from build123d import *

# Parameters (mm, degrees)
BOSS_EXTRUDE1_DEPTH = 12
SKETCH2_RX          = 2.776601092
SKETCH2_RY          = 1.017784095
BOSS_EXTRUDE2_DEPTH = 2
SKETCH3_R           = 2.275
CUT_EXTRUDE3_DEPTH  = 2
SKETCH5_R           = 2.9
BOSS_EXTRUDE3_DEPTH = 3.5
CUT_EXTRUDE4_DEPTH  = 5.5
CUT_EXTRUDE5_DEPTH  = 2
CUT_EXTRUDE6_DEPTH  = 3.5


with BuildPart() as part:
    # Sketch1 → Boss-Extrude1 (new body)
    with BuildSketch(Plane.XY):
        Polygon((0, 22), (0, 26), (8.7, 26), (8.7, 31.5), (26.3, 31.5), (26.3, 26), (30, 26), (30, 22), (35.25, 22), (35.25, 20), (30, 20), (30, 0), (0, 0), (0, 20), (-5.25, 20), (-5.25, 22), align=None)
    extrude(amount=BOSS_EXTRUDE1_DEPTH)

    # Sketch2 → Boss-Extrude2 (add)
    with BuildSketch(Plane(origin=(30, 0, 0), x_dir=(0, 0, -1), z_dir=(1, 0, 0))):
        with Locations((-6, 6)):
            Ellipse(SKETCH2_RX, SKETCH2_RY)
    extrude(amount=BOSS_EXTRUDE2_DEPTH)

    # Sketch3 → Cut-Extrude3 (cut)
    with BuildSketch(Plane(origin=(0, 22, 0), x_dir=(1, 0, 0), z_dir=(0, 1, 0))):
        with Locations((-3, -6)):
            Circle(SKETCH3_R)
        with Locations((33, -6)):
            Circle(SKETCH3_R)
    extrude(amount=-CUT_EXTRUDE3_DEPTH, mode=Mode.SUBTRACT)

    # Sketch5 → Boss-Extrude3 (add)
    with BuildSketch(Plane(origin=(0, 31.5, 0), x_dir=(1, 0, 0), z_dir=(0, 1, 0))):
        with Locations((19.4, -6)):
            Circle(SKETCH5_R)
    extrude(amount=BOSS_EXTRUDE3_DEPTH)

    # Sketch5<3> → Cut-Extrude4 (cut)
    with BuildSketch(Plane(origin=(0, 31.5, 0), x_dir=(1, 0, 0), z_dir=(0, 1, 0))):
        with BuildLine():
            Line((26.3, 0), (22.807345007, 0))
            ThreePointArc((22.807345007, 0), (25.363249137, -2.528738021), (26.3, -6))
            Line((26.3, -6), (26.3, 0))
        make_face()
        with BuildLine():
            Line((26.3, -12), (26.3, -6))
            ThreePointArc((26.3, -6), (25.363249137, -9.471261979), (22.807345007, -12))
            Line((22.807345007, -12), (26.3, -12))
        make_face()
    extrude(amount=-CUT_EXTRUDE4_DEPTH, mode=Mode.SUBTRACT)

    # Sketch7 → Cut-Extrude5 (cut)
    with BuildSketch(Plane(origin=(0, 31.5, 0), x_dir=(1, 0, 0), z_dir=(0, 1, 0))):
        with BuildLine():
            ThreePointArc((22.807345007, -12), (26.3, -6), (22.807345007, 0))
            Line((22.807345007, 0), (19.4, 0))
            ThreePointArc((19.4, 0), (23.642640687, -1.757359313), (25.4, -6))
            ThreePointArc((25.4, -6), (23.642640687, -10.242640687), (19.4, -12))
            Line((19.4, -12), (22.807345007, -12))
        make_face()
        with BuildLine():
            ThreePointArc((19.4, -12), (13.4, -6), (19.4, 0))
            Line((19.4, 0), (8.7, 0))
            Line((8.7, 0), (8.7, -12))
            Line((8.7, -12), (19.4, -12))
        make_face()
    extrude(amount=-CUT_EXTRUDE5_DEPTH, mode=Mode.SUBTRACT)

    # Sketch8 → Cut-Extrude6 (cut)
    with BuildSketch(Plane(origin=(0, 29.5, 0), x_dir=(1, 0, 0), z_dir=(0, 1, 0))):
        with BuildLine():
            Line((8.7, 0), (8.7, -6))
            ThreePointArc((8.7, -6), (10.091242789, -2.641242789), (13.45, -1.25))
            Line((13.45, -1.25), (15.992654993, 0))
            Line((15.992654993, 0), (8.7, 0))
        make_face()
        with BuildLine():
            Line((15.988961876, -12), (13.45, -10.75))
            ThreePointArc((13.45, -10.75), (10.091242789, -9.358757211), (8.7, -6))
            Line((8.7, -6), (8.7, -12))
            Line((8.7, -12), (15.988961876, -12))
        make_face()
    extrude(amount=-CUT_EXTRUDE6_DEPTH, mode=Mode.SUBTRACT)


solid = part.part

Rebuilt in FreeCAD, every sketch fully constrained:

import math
import FreeCAD as App
import Part
import Sketcher

V = App.Vector
Q = App.Units.Quantity

doc = App.newDocument("Part")
body = doc.addObject("PartDesign::Body", "Body")

sketch1 = body.newObject("Sketcher::SketchObject", "Sketch")
sketch1.AttachmentSupport = (doc.getObject("XY_Plane"), [""])
sketch1.MapMode = "FlatFace"
sketch1.addGeometry(Part.LineSegment(V(0, 26, 0), V(0, 22, 0)), False)
sketch1.addGeometry(Part.LineSegment(V(0, 22, 0), V(-5.2, 22, 0)), False)
sketch1.addGeometry(Part.LineSegment(V(-5.2, 22, 0), V(-5.2, 20, 0)), False)
sketch1.addGeometry(Part.LineSegment(V(-5.2, 20, 0), V(0, 20, 0)), False)
sketch1.addGeometry(Part.LineSegment(V(0, 20, 0), V(0, 0, 0)), False)
sketch1.addGeometry(Part.LineSegment(V(0, 0, 0), V(30, 0, 0)), False)
sketch1.addGeometry(Part.LineSegment(V(30, 0, 0), V(30, 20, 0)), False)
sketch1.addGeometry(Part.LineSegment(V(30, 20, 0), V(35.2, 20, 0)), False)
sketch1.addGeometry(Part.LineSegment(V(35.2, 20, 0), V(35.2, 22, 0)), False)
sketch1.addGeometry(Part.LineSegment(V(35.2, 22, 0), V(30, 22, 0)), False)
sketch1.addGeometry(Part.LineSegment(V(30, 22, 0), V(30, 26, 0)), False)
sketch1.addGeometry(Part.LineSegment(V(30, 26, 0), V(26.3, 26, 0)), False)
sketch1.addGeometry(Part.LineSegment(V(26.3, 26, 0), V(26.3, 31.5, 0)), False)
sketch1.addGeometry(Part.LineSegment(V(26.3, 31.5, 0), V(8.7, 31.5, 0)), False)
sketch1.addGeometry(Part.LineSegment(V(8.7, 31.5, 0), V(8.7, 26, 0)), False)
sketch1.addGeometry(Part.LineSegment(V(8.7, 26, 0), V(0, 26, 0)), False)
sketch1.addConstraint(Sketcher.Constraint("Coincident", 0, 2, 1, 1))
sketch1.addConstraint(Sketcher.Constraint("Coincident", 1, 2, 2, 1))
sketch1.addConstraint(Sketcher.Constraint("Coincident", 2, 2, 3, 1))
sketch1.addConstraint(Sketcher.Constraint("Coincident", 3, 2, 4, 1))
sketch1.addConstraint(Sketcher.Constraint("Coincident", 4, 2, 5, 1))
sketch1.addConstraint(Sketcher.Constraint("Coincident", 5, 2, 6, 1))
sketch1.addConstraint(Sketcher.Constraint("Coincident", 6, 2, 7, 1))
sketch1.addConstraint(Sketcher.Constraint("Coincident", 7, 2, 8, 1))
sketch1.addConstraint(Sketcher.Constraint("Coincident", 8, 2, 9, 1))
sketch1.addConstraint(Sketcher.Constraint("Coincident", 9, 2, 10, 1))
sketch1.addConstraint(Sketcher.Constraint("Coincident", 10, 2, 11, 1))
sketch1.addConstraint(Sketcher.Constraint("Coincident", 11, 2, 12, 1))
sketch1.addConstraint(Sketcher.Constraint("Coincident", 12, 2, 13, 1))
sketch1.addConstraint(Sketcher.Constraint("Coincident", 13, 2, 14, 1))
sketch1.addConstraint(Sketcher.Constraint("Coincident", 14, 2, 15, 1))
sketch1.addConstraint(Sketcher.Constraint("Coincident", 15, 2, 0, 1))
sketch1.addConstraint(Sketcher.Constraint("Vertical", 0))
sketch1.addConstraint(Sketcher.Constraint("Horizontal", 1))
sketch1.addConstraint(Sketcher.Constraint("Vertical", 2))
sketch1.addConstraint(Sketcher.Constraint("Horizontal", 3))
sketch1.addConstraint(Sketcher.Constraint("Vertical", 4))
sketch1.addConstraint(Sketcher.Constraint("Horizontal", 5))
sketch1.addConstraint(Sketcher.Constraint("Vertical", 6))
sketch1.addConstraint(Sketcher.Constraint("Horizontal", 7))
sketch1.addConstraint(Sketcher.Constraint("Vertical", 8))
sketch1.addConstraint(Sketcher.Constraint("Horizontal", 9))
sketch1.addConstraint(Sketcher.Constraint("Vertical", 10))
sketch1.addConstraint(Sketcher.Constraint("Horizontal", 11))
sketch1.addConstraint(Sketcher.Constraint("Vertical", 12))
sketch1.addConstraint(Sketcher.Constraint("Horizontal", 13))
sketch1.addConstraint(Sketcher.Constraint("Vertical", 14))
sketch1.addConstraint(Sketcher.Constraint("Horizontal", 15))
sketch1.addConstraint(Sketcher.Constraint("Coincident", 4, 2, -1, 1))
sketch1.addConstraint(Sketcher.Constraint("PointOnObject", 0, 2, -2))
sketch1.addConstraint(Sketcher.Constraint("Horizontal", 3, 2, 6, 2))
sketch1.addConstraint(Sketcher.Constraint("Horizontal", 1, 2, 8, 2))
sketch1.addConstraint(Sketcher.Constraint("Horizontal", 11, 2, 14, 2))
sketch1.addConstraint(Sketcher.Constraint("Vertical", 6, 2, 9, 2))
sketch1.addConstraint(Sketcher.Constraint("Equal", 3, 7))
sketch1.addConstraint(Sketcher.Constraint("DistanceX", 5, 1, 5, 2, Q("30 mm")))
sketch1.addConstraint(Sketcher.Constraint("DistanceY", 0, 2, 0, 1, Q("4 mm")))
sketch1.addConstraint(Sketcher.Constraint("DistanceY", 2, 2, 2, 1, Q("2 mm")))
sketch1.addConstraint(Sketcher.Constraint("DistanceY", 4, 2, 4, 1, Q("20 mm")))
sketch1.addConstraint(Sketcher.Constraint("DistanceX", 11, 2, 11, 1, Q("3.7 mm")))
sketch1.addConstraint(Sketcher.Constraint("DistanceX", 13, 2, 13, 1, Q("17.6 mm")))
sketch1.addConstraint(Sketcher.Constraint("DistanceY", 12, 1, 12, 2, Q("5.5 mm")))
sketch1.addConstraint(Sketcher.Constraint("DistanceX", 1, 2, 1, 1, Q("5.25 mm")))
pad1 = body.newObject("PartDesign::Pad", "Pad")
pad1.Profile = sketch1
pad1.Length = 12

sketch2 = body.newObject("Sketcher::SketchObject", "Sketch001")
sketch2.AttachmentSupport = (doc.getObject("YZ_Plane"), [""])
sketch2.MapMode = "FlatFace"
sketch2.AttachmentOffset = App.Placement(V(0, 0, 30), App.Rotation())
sketch2.addGeometry(Part.Ellipse(V(6, 3.223399, 0), V(7.017784, 6, 0), V(6, 6, 0)), False)
sketch2.addConstraint(Sketcher.Constraint("Block", 0))
pad2 = body.newObject("PartDesign::Pad", "Pad001")
pad2.Profile = sketch2
pad2.Length = 2

sketch3 = body.newObject("Sketcher::SketchObject", "Sketch002")
sketch3.AttachmentSupport = (doc.getObject("XZ_Plane"), [""])
sketch3.MapMode = "FlatFace"
sketch3.AttachmentOffset = App.Placement(V(0, 0, -22), App.Rotation())
sketch3.addGeometry(Part.Circle(V(-3, 6, 0), V(0, 0, 1), 2.3), False)
sketch3.addGeometry(Part.Circle(V(33, 6, 0), V(0, 0, 1), 2.3), False)
sketch3.addConstraint(Sketcher.Constraint("Equal", 0, 1))
sketch3.addConstraint(Sketcher.Constraint("Horizontal", 0, 3, 1, 3))
sketch3.addConstraint(Sketcher.Constraint("Diameter", 0, Q("4.55 mm")))
sketch3.addConstraint(Sketcher.Constraint("DistanceX", 0, 3, -1, 1, Q("3 mm")))
sketch3.addConstraint(Sketcher.Constraint("DistanceY", -1, 1, 0, 3, Q("6 mm")))
sketch3.addConstraint(Sketcher.Constraint("DistanceX", -1, 1, 1, 3, Q("33 mm")))
pocket1 = body.newObject("PartDesign::Pocket", "Pocket")
pocket1.Profile = sketch3
pocket1.Length = 2
pocket1.Reversed = True

sketch4 = body.newObject("Sketcher::SketchObject", "Sketch003")
sketch4.AttachmentSupport = (doc.getObject("XZ_Plane"), [""])
sketch4.MapMode = "FlatFace"
sketch4.AttachmentOffset = App.Placement(V(0, 0, -31.5), App.Rotation())
sketch4.addGeometry(Part.Circle(V(19.4, 6, 0), V(0, 0, 1), 2.9), False)
sketch4.addConstraint(Sketcher.Constraint("Diameter", 0, Q("5.8 mm")))
sketch4.addConstraint(Sketcher.Constraint("DistanceY", -1, 1, 0, 3, Q("6 mm")))
sketch4.addConstraint(Sketcher.Constraint("DistanceX", -1, 1, 0, 3, Q("19.4 mm")))
pad3 = body.newObject("PartDesign::Pad", "Pad002")
pad3.Profile = sketch4
pad3.Length = 3.5
pad3.Reversed = True

sketch5 = body.newObject("Sketcher::SketchObject", "Sketch004")
sketch5.AttachmentSupport = (doc.getObject("XZ_Plane"), [""])
sketch5.MapMode = "FlatFace"
sketch5.AttachmentOffset = App.Placement(V(0, 0, -31.5), App.Rotation())
sketch5.addGeometry(Part.LineSegment(V(26.3, 0, 0), V(22.8, 0, 0)), False)
sketch5.addGeometry(Part.ArcOfCircle(Part.Circle(V(19.4, 6, 0), V(0, 0, 1), 6.9), math.radians(-60), math.radians(0)), False)
sketch5.addGeometry(Part.LineSegment(V(26.3, 6, 0), V(26.3, 0, 0)), False)
sketch5.addGeometry(Part.LineSegment(V(26.3, 12, 0), V(26.3, 6, 0)), False)
sketch5.addGeometry(Part.ArcOfCircle(Part.Circle(V(19.4, 6, 0), V(0, 0, 1), 6.9), math.radians(0), math.radians(60)), False)
sketch5.addGeometry(Part.LineSegment(V(22.8, 12, 0), V(26.3, 12, 0)), False)
sketch5.addConstraint(Sketcher.Constraint("Coincident", 0, 2, 1, 1))
sketch5.addConstraint(Sketcher.Constraint("Tangent", 1, 2, 2, 1))
sketch5.addConstraint(Sketcher.Constraint("Coincident", 2, 2, 0, 1))
sketch5.addConstraint(Sketcher.Constraint("Tangent", 3, 2, 4, 1))
sketch5.addConstraint(Sketcher.Constraint("Coincident", 4, 2, 5, 1))
sketch5.addConstraint(Sketcher.Constraint("Coincident", 5, 2, 3, 1))
sketch5.addConstraint(Sketcher.Constraint("Horizontal", 0))
sketch5.addConstraint(Sketcher.Constraint("Vertical", 2))
sketch5.addConstraint(Sketcher.Constraint("Vertical", 3))
sketch5.addConstraint(Sketcher.Constraint("Horizontal", 5))
sketch5.addConstraint(Sketcher.Constraint("Coincident", 4, 3, 1, 3))
sketch5.addConstraint(Sketcher.Constraint("Equal", 1, 4))
sketch5.addConstraint(Sketcher.Constraint("PointOnObject", 0, 2, -1))
sketch5.addConstraint(Sketcher.Constraint("Vertical", 0, 2, 4, 2))
sketch5.addConstraint(Sketcher.Constraint("Radius", 1, Q("6.9 mm")))
sketch5.addConstraint(Sketcher.Constraint("DistanceY", 2, 2, 2, 1, Q("6 mm")))
sketch5.addConstraint(Sketcher.Constraint("DistanceX", -1, 1, 1, 3, Q("19.4 mm")))
pocket2 = body.newObject("PartDesign::Pocket", "Pocket001")
pocket2.Profile = sketch5
pocket2.Length = 5.5
pocket2.Reversed = True

sketch6 = body.newObject("Sketcher::SketchObject", "Sketch005")
sketch6.AttachmentSupport = (doc.getObject("XZ_Plane"), [""])
sketch6.MapMode = "FlatFace"
sketch6.AttachmentOffset = App.Placement(V(0, 0, -31.5), App.Rotation())
sketch6.addGeometry(Part.ArcOfCircle(Part.Circle(V(19.4, 6, 0), V(0, 0, 1), 6.9), math.radians(-60), math.radians(60)), False)
sketch6.addGeometry(Part.LineSegment(V(22.8, 0, 0), V(19.4, 0, 0)), False)
sketch6.addGeometry(Part.ArcOfCircle(Part.Circle(V(19.4, 6, 0), V(0, 0, 1), 6), math.radians(-90), math.radians(0)), False)
sketch6.addGeometry(Part.ArcOfCircle(Part.Circle(V(19.4, 6, 0), V(0, 0, 1), 6), math.radians(0), math.radians(90)), False)
sketch6.addGeometry(Part.LineSegment(V(19.4, 12, 0), V(22.8, 12, 0)), False)
sketch6.addGeometry(Part.ArcOfCircle(Part.Circle(V(19.4, 6, 0), V(0, 0, 1), 6), math.radians(90), math.radians(270)), False)
sketch6.addGeometry(Part.LineSegment(V(19.4, 0, 0), V(8.7, 0, 0)), False)
sketch6.addGeometry(Part.LineSegment(V(8.7, 0, 0), V(8.7, 12, 0)), False)
sketch6.addGeometry(Part.LineSegment(V(8.7, 12, 0), V(19.4, 12, 0)), False)
sketch6.addConstraint(Sketcher.Constraint("Coincident", 0, 1, 1, 1))
sketch6.addConstraint(Sketcher.Constraint("Tangent", 1, 2, 2, 1))
sketch6.addConstraint(Sketcher.Constraint("Tangent", 2, 2, 3, 1))
sketch6.addConstraint(Sketcher.Constraint("Tangent", 3, 2, 4, 1))
sketch6.addConstraint(Sketcher.Constraint("Coincident", 4, 2, 0, 2))
sketch6.addConstraint(Sketcher.Constraint("Tangent", 5, 2, 6, 1))
sketch6.addConstraint(Sketcher.Constraint("Coincident", 6, 2, 7, 1))
sketch6.addConstraint(Sketcher.Constraint("Coincident", 7, 2, 8, 1))
sketch6.addConstraint(Sketcher.Constraint("Tangent", 8, 2, 5, 1))
sketch6.addConstraint(Sketcher.Constraint("Horizontal", 1))
sketch6.addConstraint(Sketcher.Constraint("Horizontal", 4))
sketch6.addConstraint(Sketcher.Constraint("Horizontal", 6))
sketch6.addConstraint(Sketcher.Constraint("Vertical", 7))
sketch6.addConstraint(Sketcher.Constraint("Horizontal", 8))
sketch6.addConstraint(Sketcher.Constraint("Coincident", 2, 3, 0, 3))
sketch6.addConstraint(Sketcher.Constraint("Coincident", 5, 3, 0, 3))
sketch6.addConstraint(Sketcher.Constraint("Coincident", 8, 2, 3, 2))
sketch6.addConstraint(Sketcher.Constraint("PointOnObject", 0, 1, -1))
sketch6.addConstraint(Sketcher.Constraint("Horizontal", 5, 3, 2, 2))
sketch6.addConstraint(Sketcher.Constraint("Radius", 2, Q("6 mm")))
sketch6.addConstraint(Sketcher.Constraint("Radius", 0, Q("6.9 mm")))
sketch6.addConstraint(Sketcher.Constraint("DistanceX", 6, 2, 6, 1, Q("10.7 mm")))
sketch6.addConstraint(Sketcher.Constraint("DistanceX", -1, 1, 0, 3, Q("19.4 mm")))
pocket3 = body.newObject("PartDesign::Pocket", "Pocket002")
pocket3.Profile = sketch6
pocket3.Length = 2
pocket3.Reversed = True

sketch7 = body.newObject("Sketcher::SketchObject", "Sketch006")
sketch7.AttachmentSupport = (doc.getObject("XZ_Plane"), [""])
sketch7.MapMode = "FlatFace"
sketch7.AttachmentOffset = App.Placement(V(0, 0, -29.5), App.Rotation())
sketch7.addGeometry(Part.LineSegment(V(8.7, 0, 0), V(8.7, 6, 0)), False)
sketch7.addGeometry(Part.ArcOfCircle(Part.Circle(V(13.4, 6, 0), V(0, 0, 1), 4.7), math.radians(180), math.radians(270)), False)
sketch7.addGeometry(Part.LineSegment(V(13.4, 1.2, 0), V(16, 0, 0)), False)
sketch7.addGeometry(Part.LineSegment(V(16, 0, 0), V(8.7, 0, 0)), False)
sketch7.addGeometry(Part.LineSegment(V(16, 12, 0), V(13.4, 10.8, 0)), False)
sketch7.addGeometry(Part.ArcOfCircle(Part.Circle(V(13.4, 6, 0), V(0, 0, 1), 4.7), math.radians(90), math.radians(180)), False)
sketch7.addGeometry(Part.LineSegment(V(8.7, 6, 0), V(8.7, 12, 0)), False)
sketch7.addGeometry(Part.LineSegment(V(8.7, 12, 0), V(16, 12, 0)), False)
sketch7.addConstraint(Sketcher.Constraint("Tangent", 0, 2, 1, 1))
sketch7.addConstraint(Sketcher.Constraint("Coincident", 1, 2, 2, 1))
sketch7.addConstraint(Sketcher.Constraint("Coincident", 2, 2, 3, 1))
sketch7.addConstraint(Sketcher.Constraint("Coincident", 3, 2, 0, 1))
sketch7.addConstraint(Sketcher.Constraint("Coincident", 4, 2, 5, 1))
sketch7.addConstraint(Sketcher.Constraint("Tangent", 5, 2, 6, 1))
sketch7.addConstraint(Sketcher.Constraint("Coincident", 6, 2, 7, 1))
sketch7.addConstraint(Sketcher.Constraint("Coincident", 7, 2, 4, 1))
sketch7.addConstraint(Sketcher.Constraint("Vertical", 0))
sketch7.addConstraint(Sketcher.Constraint("Horizontal", 3))
sketch7.addConstraint(Sketcher.Constraint("Vertical", 6))
sketch7.addConstraint(Sketcher.Constraint("Horizontal", 7))
sketch7.addConstraint(Sketcher.Constraint("Coincident", 5, 3, 1, 3))
sketch7.addConstraint(Sketcher.Constraint("Equal", 1, 5))
sketch7.addConstraint(Sketcher.Constraint("PointOnObject", 2, 2, -1))
sketch7.addConstraint(Sketcher.Constraint("Vertical", 5, 3, 1, 2))
sketch7.addConstraint(Sketcher.Constraint("Vertical", 1, 2, 4, 2))
sketch7.addConstraint(Sketcher.Constraint("Equal", 0, 6))
sketch7.addConstraint(Sketcher.Constraint("DistanceY", 0, 1, 0, 2, Q("6 mm")))
sketch7.addConstraint(Sketcher.Constraint("Radius", 1, Q("4.75 mm")))
sketch7.addConstraint(Sketcher.Constraint("DistanceX", -1, 1, 0, 2, Q("8.7 mm")))
sketch7.addConstraint(Sketcher.Constraint("Distance", 2, Q("2.833301 mm")))
sketch7.addConstraint(Sketcher.Constraint("DistanceX", 7, 1, 7, 2, Q("7.288962 mm")))
pocket4 = body.newObject("PartDesign::Pocket", "Pocket003")
pocket4.Profile = sketch7
pocket4.Length = 3.5
pocket4.Reversed = True

doc.recompute()
